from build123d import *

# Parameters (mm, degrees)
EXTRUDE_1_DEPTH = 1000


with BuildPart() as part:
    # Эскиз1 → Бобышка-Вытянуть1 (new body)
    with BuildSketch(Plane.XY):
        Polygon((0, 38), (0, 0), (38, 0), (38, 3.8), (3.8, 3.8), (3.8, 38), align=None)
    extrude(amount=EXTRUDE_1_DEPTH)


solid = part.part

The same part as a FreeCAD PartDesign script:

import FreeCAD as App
import Part
import Sketcher

doc = App.newDocument("Part")
body = doc.addObject("PartDesign::Body", "Body")

# Sketch on XY plane
sketch1 = body.newObject("Sketcher::SketchObject", "Sketch")
sketch1.AttachmentSupport = (doc.getObject("XY_Plane"), [""])
sketch1.MapMode = "FlatFace"
sketch1.addGeometry([
    Part.LineSegment(App.Vector(0, 38, 0), App.Vector(0, 0, 0)),  # 0
    Part.LineSegment(App.Vector(0, 0, 0), App.Vector(38, 0, 0)),  # 1
    Part.LineSegment(App.Vector(38, 0, 0), App.Vector(38, 3.8, 0)),  # 2
    Part.LineSegment(App.Vector(38, 3.8, 0), App.Vector(3.8, 3.8, 0)),  # 3
    Part.LineSegment(App.Vector(3.8, 3.8, 0), App.Vector(3.8, 38, 0)),  # 4
    Part.LineSegment(App.Vector(3.8, 38, 0), App.Vector(0, 38, 0)),  # 5
], False)
sketch1.addConstraint([
    Sketcher.Constraint("Coincident", 0, 2, 1, 1),
    Sketcher.Constraint("Coincident", 1, 2, 2, 1),
    Sketcher.Constraint("Coincident", 2, 2, 3, 1),
    Sketcher.Constraint("Coincident", 3, 2, 4, 1),
    Sketcher.Constraint("Coincident", 4, 2, 5, 1),
    Sketcher.Constraint("Coincident", 5, 2, 0, 1),
    Sketcher.Constraint("Vertical", 0),
    Sketcher.Constraint("Horizontal", 1),
    Sketcher.Constraint("Vertical", 2),
    Sketcher.Constraint("Horizontal", 3),
    Sketcher.Constraint("Vertical", 4),
    Sketcher.Constraint("Horizontal", 5),
    Sketcher.Constraint("Coincident", 0, 2, -1, 1),
    Sketcher.Constraint("Equal", 1, 0),
    Sketcher.Constraint("Equal", 5, 2),
    Sketcher.Constraint("DistanceX", 1, 1, 1, 2, 38.0),
    Sketcher.Constraint("DistanceX", 3, 2, 3, 1, 34.2),
])
pad1 = body.newObject("PartDesign::Pad", "Pad")
pad1.Profile = sketch1
pad1.Length = 1000

doc.recompute()
